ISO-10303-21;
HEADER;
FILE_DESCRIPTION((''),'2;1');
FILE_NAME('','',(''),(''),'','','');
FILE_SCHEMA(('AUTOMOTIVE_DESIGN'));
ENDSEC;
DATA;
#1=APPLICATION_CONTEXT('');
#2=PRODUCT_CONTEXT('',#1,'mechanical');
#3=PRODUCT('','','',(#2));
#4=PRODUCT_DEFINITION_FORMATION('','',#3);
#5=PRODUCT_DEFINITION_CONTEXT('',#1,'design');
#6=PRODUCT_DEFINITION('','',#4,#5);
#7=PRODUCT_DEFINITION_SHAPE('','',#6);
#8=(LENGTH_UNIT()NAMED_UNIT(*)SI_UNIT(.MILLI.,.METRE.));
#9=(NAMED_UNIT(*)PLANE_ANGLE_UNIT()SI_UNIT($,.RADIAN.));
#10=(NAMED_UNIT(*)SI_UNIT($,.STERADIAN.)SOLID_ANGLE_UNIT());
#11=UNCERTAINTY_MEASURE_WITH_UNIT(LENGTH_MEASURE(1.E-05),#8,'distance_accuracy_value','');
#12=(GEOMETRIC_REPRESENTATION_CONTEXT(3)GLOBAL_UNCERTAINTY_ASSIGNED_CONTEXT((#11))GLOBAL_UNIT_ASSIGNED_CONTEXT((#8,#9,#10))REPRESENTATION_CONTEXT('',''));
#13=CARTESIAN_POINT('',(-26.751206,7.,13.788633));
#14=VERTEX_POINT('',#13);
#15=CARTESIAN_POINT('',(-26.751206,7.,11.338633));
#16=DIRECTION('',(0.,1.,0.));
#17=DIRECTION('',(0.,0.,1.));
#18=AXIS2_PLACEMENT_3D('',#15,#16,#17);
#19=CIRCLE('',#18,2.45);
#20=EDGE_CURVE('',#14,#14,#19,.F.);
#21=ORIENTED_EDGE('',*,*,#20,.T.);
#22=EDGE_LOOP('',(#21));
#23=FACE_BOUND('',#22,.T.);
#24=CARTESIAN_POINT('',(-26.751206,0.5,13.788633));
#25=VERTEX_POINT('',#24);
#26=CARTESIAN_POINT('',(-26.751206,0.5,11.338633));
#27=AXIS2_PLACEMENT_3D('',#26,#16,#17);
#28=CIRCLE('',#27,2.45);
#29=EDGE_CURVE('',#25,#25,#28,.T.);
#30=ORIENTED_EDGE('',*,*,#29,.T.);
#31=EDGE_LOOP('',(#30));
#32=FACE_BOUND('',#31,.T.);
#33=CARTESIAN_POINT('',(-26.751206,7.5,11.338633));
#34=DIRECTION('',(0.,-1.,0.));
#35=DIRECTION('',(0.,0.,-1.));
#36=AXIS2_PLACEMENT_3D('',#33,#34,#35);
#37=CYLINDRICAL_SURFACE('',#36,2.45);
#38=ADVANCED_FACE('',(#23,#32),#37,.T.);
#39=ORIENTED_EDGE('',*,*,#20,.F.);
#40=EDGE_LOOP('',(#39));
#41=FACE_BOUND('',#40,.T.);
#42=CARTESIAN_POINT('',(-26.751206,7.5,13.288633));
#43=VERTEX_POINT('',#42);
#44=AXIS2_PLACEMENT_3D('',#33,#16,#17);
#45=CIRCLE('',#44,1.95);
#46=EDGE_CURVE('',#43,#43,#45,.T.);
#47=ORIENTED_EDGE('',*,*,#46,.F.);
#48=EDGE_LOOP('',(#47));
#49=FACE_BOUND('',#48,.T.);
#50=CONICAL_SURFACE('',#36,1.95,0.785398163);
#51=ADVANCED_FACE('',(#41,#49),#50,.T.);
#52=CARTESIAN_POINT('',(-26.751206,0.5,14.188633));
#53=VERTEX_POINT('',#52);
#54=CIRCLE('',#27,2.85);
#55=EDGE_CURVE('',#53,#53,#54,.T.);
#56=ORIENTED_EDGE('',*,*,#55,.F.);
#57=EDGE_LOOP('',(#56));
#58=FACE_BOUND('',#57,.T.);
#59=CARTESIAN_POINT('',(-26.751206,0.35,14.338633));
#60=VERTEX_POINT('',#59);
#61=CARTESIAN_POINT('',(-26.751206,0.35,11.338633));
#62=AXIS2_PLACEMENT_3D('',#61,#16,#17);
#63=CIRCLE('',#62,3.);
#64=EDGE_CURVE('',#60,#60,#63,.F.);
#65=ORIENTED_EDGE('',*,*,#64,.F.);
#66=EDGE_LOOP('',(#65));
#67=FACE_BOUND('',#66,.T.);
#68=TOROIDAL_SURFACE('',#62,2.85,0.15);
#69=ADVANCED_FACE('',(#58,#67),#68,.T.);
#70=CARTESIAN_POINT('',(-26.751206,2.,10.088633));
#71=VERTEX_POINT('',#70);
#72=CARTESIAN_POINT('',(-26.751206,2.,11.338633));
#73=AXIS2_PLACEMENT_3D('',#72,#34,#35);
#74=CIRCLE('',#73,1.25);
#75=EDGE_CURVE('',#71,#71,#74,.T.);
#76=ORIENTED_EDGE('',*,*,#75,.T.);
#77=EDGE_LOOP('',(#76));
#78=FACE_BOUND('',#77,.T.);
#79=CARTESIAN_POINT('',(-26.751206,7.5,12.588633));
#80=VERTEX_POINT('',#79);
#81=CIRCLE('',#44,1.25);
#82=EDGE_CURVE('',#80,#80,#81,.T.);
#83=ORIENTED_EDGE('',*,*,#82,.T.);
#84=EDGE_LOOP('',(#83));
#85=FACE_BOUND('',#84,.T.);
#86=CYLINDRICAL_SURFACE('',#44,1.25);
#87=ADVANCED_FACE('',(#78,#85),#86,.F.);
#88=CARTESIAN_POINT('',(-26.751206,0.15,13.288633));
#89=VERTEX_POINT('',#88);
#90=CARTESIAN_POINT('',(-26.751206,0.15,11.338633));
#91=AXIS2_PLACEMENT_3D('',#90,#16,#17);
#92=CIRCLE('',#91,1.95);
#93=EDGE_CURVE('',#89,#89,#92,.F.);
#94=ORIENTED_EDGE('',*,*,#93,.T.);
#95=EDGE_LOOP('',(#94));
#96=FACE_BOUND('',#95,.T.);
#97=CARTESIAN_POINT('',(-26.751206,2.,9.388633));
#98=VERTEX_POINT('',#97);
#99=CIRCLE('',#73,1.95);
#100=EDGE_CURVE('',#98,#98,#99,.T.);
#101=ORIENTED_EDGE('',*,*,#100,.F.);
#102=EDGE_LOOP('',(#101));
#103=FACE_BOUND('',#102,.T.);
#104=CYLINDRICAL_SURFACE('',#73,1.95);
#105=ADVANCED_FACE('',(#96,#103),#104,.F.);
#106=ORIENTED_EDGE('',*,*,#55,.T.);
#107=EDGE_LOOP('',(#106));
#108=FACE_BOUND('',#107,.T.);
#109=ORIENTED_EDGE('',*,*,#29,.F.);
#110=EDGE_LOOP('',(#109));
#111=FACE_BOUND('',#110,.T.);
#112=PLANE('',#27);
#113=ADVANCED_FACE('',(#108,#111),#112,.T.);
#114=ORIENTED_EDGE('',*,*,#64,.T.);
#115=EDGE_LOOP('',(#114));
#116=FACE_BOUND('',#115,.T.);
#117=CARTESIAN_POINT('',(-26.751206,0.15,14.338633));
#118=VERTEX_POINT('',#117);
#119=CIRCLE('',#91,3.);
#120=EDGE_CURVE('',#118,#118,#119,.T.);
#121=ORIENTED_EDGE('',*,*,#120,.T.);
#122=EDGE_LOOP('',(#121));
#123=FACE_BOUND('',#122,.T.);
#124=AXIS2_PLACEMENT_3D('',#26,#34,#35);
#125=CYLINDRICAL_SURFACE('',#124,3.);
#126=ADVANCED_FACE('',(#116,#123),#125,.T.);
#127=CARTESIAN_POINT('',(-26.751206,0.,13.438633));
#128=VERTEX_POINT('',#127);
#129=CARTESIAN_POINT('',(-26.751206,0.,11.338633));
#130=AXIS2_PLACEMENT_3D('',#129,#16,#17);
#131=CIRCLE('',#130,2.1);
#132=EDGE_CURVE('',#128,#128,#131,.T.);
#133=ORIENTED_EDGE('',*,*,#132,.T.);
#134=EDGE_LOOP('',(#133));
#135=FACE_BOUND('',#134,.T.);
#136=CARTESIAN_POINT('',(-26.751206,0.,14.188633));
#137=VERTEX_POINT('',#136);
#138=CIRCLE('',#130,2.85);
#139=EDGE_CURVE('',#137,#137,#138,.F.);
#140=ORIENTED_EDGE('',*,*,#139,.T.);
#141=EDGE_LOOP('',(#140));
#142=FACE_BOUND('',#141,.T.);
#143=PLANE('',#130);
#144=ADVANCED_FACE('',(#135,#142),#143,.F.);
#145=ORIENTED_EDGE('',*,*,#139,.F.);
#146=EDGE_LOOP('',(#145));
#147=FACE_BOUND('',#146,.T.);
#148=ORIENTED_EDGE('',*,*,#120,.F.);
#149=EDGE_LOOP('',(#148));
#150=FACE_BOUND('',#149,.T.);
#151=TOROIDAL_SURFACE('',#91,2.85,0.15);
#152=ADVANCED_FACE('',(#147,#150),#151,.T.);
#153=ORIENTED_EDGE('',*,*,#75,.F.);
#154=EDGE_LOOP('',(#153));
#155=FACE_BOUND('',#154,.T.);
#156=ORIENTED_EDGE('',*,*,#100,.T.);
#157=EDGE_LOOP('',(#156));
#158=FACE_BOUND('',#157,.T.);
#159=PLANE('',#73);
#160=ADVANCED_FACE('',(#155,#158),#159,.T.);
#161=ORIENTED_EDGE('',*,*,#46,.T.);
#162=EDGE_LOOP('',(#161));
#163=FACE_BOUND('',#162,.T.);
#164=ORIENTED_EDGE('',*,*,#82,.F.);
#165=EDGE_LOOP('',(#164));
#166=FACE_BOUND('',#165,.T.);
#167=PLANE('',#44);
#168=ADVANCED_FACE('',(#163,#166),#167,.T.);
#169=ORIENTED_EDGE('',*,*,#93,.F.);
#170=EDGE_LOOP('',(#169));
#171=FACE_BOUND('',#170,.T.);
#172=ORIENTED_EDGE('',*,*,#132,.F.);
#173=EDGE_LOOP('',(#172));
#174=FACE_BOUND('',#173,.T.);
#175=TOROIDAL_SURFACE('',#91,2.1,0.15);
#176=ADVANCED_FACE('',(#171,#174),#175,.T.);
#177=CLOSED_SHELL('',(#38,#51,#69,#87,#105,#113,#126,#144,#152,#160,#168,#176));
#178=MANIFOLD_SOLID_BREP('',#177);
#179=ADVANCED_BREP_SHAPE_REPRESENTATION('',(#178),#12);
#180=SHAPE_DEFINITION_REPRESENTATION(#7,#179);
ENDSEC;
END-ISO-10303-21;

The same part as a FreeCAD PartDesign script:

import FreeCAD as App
import Part
import Sketcher
from FreeCAD import Vector
Q = App.Units.Quantity


def edges_at(feature, points):
    """Names of the edges that pass closest to the given points."""
    edges = feature.Shape.Edges
    near = lambda p: min(range(len(edges)), key=lambda i: edges[i].distToShape(Part.Vertex(*p))[0])
    return sorted({f"Edge{near(p) + 1}" for p in points})

doc = App.newDocument("Part")
params = doc.addObject("Spreadsheet::Sheet", "Params")
for row, (alias, value) in enumerate([
    ("sketch1_diameter", "6 mm"),
    ("pad1_length", "0.5 mm"),
    ("sketch2_diameter", "4.9 mm"),
    ("pad2_length", "7 mm"),
    ("chamfer_size", "0.5 mm"),
    ("sketch3_diameter", "3.9 mm"),
    ("pocket1_length", "2 mm"),
    ("sketch4_diameter", "2.1 mm"),
    ("pocket2_length", "10 mm"),
    ("sketch5_diameter", "2.5 mm"),
    ("hole_diameter", "2.5 mm"),
    ("hole_depth", "8.5 mm"),
    ("fillet_radius", "0.15 mm"),
], start=1):
    params.set(f"A{row}", alias)
    params.set(f"B{row}", "=" + value)
    params.setAlias(f"B{row}", alias)

body = doc.addObject("PartDesign::Body", "Body")

# Sketch on XZ plane
sketch1 = body.newObject("Sketcher::SketchObject", "Sketch")
sketch1.AttachmentSupport = (doc.getObject("XZ_Plane"), [""])
sketch1.MapMode = "FlatFace"
sketch1.addGeometry(Part.Circle(Vector(-26.751206, 11.338633, 0), Vector(0, 0, 1), 3), False)
sketch1.addConstraint([
    Sketcher.Constraint("Diameter", 0, Q("6 mm")),
    Sketcher.Constraint("DistanceX", 0, 3, -1, 1, Q("26.751206 mm")),
    Sketcher.Constraint("DistanceY", -1, 1, 0, 3, Q("11.338633 mm")),
])
sketch1.setExpression("Constraints[0]", "Params.sketch1_diameter")
pad1 = body.newObject("PartDesign::Pad", "Pad")
pad1.Profile = sketch1
pad1.setExpression("Length", "Params.pad1_length")
pad1.Reversed = True

# Sketch on XZ plane
sketch2 = body.newObject("Sketcher::SketchObject", "Sketch001")
sketch2.AttachmentSupport = (doc.getObject("XZ_Plane"), [""])
sketch2.MapMode = "FlatFace"
sketch2.AttachmentOffset = App.Placement(Vector(0, 0, -0.5), App.Rotation())
sketch2.addGeometry(Part.Circle(Vector(-26.751206, 11.338633, 0), Vector(0, 0, 1), 2.45), False)
sketch2.addConstraint([
    Sketcher.Constraint("Diameter", 0, Q("4.9 mm")),
    Sketcher.Constraint("DistanceX", 0, 3, -1, 1, Q("26.751206 mm")),
    Sketcher.Constraint("DistanceY", -1, 1, 0, 3, Q("11.338633 mm")),
])
sketch2.setExpression("Constraints[0]", "Params.sketch2_diameter")
pad2 = body.newObject("PartDesign::Pad", "Pad001")
pad2.Profile = sketch2
pad2.setExpression("Length", "Params.pad2_length")
pad2.Reversed = True
doc.recompute()

chamfer = body.newObject("PartDesign::Chamfer", "Chamfer")
chamfer.Base = (pad2, edges_at(pad2, [(-26.751, 7.5, 8.889)]))
chamfer.setExpression("Size", "Params.chamfer_size")

# Sketch on XZ plane
sketch3 = body.newObject("Sketcher::SketchObject", "Sketch002")
sketch3.AttachmentSupport = (doc.getObject("XZ_Plane"), [""])
sketch3.MapMode = "FlatFace"
sketch3.addGeometry(Part.Circle(Vector(-26.751206, 11.338633, 0), Vector(0, 0, 1), 1.95), False)
sketch3.addConstraint([
    Sketcher.Constraint("Diameter", 0, Q("3.9 mm")),
    Sketcher.Constraint("DistanceX", 0, 3, -1, 1, Q("26.751206 mm")),
    Sketcher.Constraint("DistanceY", -1, 1, 0, 3, Q("11.338633 mm")),
])
sketch3.setExpression("Constraints[0]", "Params.sketch3_diameter")
pocket1 = body.newObject("PartDesign::Pocket", "Pocket")
pocket1.Profile = sketch3
pocket1.setExpression("Length", "Params.pocket1_length")

# Sketch on XZ plane
sketch4 = body.newObject("Sketcher::SketchObject", "Sketch003")
sketch4.AttachmentSupport = (doc.getObject("XZ_Plane"), [""])
sketch4.MapMode = "FlatFace"
sketch4.AttachmentOffset = App.Placement(Vector(0, 0, -7.5), App.Rotation())
sketch4.addGeometry(Part.Circle(Vector(-26.751206, 11.338633, 0), Vector(0, 0, 1), 1.05), False)
sketch4.addConstraint([
    Sketcher.Constraint("Diameter", 0, Q("2.1 mm")),
    Sketcher.Constraint("DistanceX", 0, 3, -1, 1, Q("26.751206 mm")),
    Sketcher.Constraint("DistanceY", -1, 1, 0, 3, Q("11.338633 mm")),
])
sketch4.setExpression("Constraints[0]", "Params.sketch4_diameter")
pocket2 = body.newObject("PartDesign::Pocket", "Pocket001")
pocket2.Profile = sketch4
pocket2.setExpression("Length", "Params.pocket2_length")
pocket2.Reversed = True

# Sketch on XZ plane
sketch5 = body.newObject("Sketcher::SketchObject", "Sketch004")
sketch5.AttachmentSupport = (doc.getObject("XZ_Plane"), [""])
sketch5.MapMode = "FlatFace"
sketch5.AttachmentOffset = App.Placement(Vector(0, 0, -7.5), App.Rotation())
sketch5.addGeometry(Part.Circle(Vector(-26.751206, 11.338633, 0), Vector(0, 0, 1), 1.25), False)
sketch5.addConstraint([
    Sketcher.Constraint("Diameter", 0, Q("2.5 mm")),
    Sketcher.Constraint("DistanceX", 0, 3, -1, 1, Q("26.751206 mm")),
    Sketcher.Constraint("DistanceY", -1, 1, 0, 3, Q("11.338633 mm")),
])
sketch5.setExpression("Constraints[0]", "Params.sketch5_diameter")
doc.recompute()
hole = body.newObject("PartDesign::Hole", "Hole")
hole.Profile = sketch5
hole.ThreadType = "None"
hole.setExpression("Diameter", "Params.hole_diameter")
hole.DepthType = "Dimension"
hole.setExpression("Depth", "Params.hole_depth")
hole.DrillPoint = "Angled"
hole.DrillPointAngle = 118
hole.Reversed = True
doc.recompute()

fillet = body.newObject("PartDesign::Fillet", "Fillet")
fillet.Base = (hole, edges_at(hole, [(-26.751, 0, 13.289), (-26.751, 0, 8.339), (-26.751, 0.5, 8.339)]))
fillet.setExpression("Radius", "Params.fillet_radius")

doc.recompute()
